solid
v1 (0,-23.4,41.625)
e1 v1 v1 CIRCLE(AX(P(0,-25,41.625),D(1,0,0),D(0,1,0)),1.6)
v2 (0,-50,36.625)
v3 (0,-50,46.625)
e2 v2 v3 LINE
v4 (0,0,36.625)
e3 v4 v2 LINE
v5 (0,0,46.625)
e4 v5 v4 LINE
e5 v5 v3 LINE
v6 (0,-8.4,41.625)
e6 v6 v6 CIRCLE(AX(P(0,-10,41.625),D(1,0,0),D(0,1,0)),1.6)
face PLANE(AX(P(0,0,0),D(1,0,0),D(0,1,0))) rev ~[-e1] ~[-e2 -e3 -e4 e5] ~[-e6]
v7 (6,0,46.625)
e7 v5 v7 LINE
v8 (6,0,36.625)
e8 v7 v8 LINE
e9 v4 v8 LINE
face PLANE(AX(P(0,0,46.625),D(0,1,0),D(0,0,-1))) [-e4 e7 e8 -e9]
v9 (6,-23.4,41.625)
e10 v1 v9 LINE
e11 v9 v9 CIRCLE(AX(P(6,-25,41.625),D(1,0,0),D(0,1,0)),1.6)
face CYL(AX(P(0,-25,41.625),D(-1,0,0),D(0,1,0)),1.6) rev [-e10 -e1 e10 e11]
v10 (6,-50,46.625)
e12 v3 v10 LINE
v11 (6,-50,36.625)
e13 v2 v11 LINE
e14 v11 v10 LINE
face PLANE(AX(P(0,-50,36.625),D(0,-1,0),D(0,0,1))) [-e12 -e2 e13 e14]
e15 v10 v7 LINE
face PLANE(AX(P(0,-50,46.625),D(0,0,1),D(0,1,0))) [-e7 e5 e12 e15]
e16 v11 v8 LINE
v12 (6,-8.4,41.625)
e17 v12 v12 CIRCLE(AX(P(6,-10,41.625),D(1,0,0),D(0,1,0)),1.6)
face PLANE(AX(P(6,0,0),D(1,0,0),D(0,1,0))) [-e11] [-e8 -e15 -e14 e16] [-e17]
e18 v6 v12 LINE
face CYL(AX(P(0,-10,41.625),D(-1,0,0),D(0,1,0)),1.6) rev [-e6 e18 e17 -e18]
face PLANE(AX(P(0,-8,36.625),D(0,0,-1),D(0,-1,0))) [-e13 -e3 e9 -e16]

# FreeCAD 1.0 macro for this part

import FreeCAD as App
import Part
import Sketcher

V = App.Vector
Q = App.Units.Quantity


def add_polygon(sketch, points):
    """Adds a closed chain of lines whose ends are joined by coincident constraints."""
    first, n = sketch.GeometryCount, len(points)
    for a, b in zip(points, points[1:] + points[:1]):
        sketch.addGeometry(Part.LineSegment(App.Vector(*a, 0), App.Vector(*b, 0)), False)
    for i in range(n):
        sketch.addConstraint(Sketcher.Constraint("Coincident", first + i, 2, first + (i + 1) % n, 1))

doc = App.newDocument("Part")
body = doc.addObject("PartDesign::Body", "Body")

# Sketch on YZ plane
sketch1 = body.newObject("Sketcher::SketchObject", "Sketch")
sketch1.AttachmentSupport = (doc.getObject("YZ_Plane"), [""])
sketch1.MapMode = "FlatFace"
add_polygon(sketch1, [(-50, 46.625), (-50, 36.625), (0, 36.625), (0, 46.625)])  # lines 0-3
sketch1.addGeometry(Part.Circle(V(-25, 41.625, 0), V(0, 0, 1), 1.6), False)  # 4
sketch1.addGeometry(Part.Circle(V(-10, 41.625, 0), V(0, 0, 1), 1.6), False)  # 5
sketch1.addConstraint(Sketcher.Constraint("Vertical", 0))
sketch1.addConstraint(Sketcher.Constraint("Horizontal", 1))
sketch1.addConstraint(Sketcher.Constraint("Vertical", 2))
sketch1.addConstraint(Sketcher.Constraint("Horizontal", 3))
sketch1.addConstraint(Sketcher.Constraint("Equal", 4, 5))
sketch1.addConstraint(Sketcher.Constraint("PointOnObject", 1, 2, -2))
sketch1.addConstraint(Sketcher.Constraint("Horizontal", 4, 3, 5, 3))
sketch1.addConstraint(Sketcher.Constraint("Diameter", 4, Q("3.2 mm")))
sketch1.addConstraint(Sketcher.Constraint("DistanceX", 1, 1, 1, 2, Q("50 mm")))
sketch1.addConstraint(Sketcher.Constraint("DistanceY", 0, 2, 0, 1, Q("10 mm")))
sketch1.addConstraint(Sketcher.Constraint("DistanceX", 5, 3, -1, 1, Q("10 mm")))
sketch1.addConstraint(Sketcher.Constraint("DistanceX", 4, 3, 5, 3, Q("15 mm")))
sketch1.addConstraint(Sketcher.Constraint("DistanceY", 0, 2, 4, 3, Q("5 mm")))
sketch1.addConstraint(Sketcher.Constraint("DistanceY", -1, 1, 4, 3, Q("41.625 mm")))
pad1 = body.newObject("PartDesign::Pad", "Pad")
pad1.Profile = sketch1
pad1.Length = 6

doc.recompute()
